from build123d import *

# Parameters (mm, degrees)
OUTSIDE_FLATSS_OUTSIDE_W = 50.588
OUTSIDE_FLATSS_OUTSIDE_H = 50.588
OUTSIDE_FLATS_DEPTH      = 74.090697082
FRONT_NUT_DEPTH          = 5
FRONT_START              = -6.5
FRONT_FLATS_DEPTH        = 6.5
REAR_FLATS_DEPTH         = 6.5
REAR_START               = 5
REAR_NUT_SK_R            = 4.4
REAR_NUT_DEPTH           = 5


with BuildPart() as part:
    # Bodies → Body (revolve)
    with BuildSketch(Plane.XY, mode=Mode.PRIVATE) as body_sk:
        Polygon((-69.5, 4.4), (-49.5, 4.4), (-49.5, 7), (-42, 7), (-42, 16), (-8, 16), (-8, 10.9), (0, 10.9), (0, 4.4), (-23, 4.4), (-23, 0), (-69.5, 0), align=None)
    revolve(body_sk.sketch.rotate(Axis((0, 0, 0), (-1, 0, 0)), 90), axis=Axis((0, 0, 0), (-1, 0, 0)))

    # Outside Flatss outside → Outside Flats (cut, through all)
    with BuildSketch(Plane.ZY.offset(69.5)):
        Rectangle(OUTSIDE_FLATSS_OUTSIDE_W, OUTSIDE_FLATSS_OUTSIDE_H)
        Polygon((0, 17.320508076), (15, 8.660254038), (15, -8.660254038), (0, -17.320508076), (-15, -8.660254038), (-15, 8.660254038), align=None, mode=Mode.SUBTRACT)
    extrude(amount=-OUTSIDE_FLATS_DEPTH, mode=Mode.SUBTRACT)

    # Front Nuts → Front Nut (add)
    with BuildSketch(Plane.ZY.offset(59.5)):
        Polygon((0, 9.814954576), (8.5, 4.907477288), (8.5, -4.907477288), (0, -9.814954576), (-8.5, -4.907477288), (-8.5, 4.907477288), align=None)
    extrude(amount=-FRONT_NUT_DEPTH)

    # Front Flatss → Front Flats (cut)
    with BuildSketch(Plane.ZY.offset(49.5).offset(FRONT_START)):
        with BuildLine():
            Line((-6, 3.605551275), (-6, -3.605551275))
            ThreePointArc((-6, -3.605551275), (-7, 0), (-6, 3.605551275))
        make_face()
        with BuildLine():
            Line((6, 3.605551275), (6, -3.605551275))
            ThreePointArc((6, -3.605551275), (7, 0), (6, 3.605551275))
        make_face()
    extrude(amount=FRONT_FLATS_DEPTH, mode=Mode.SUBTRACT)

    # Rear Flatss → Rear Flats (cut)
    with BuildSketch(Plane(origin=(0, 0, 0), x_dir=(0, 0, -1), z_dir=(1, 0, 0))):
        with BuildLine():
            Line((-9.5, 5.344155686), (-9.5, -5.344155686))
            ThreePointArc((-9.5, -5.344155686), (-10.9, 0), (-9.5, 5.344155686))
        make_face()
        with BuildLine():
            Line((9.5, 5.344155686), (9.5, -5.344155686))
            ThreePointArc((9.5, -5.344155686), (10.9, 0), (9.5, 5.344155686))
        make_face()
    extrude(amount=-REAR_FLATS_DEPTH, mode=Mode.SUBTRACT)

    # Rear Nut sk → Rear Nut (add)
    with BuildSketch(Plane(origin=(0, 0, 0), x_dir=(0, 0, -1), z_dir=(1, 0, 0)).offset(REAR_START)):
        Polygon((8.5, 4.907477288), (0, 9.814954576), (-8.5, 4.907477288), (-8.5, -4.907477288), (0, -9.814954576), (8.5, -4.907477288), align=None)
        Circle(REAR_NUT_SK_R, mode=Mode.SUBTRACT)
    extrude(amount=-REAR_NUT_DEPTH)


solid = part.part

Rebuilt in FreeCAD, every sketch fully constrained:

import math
import FreeCAD as App
import Part
import Sketcher
from FreeCAD import Vector
Q = App.Units.Quantity


def add_polygon(sketch, points):
    """Adds a closed chain of lines whose ends are joined by coincident constraints."""
    first, n = sketch.GeometryCount, len(points)
    for a, b in zip(points, points[1:] + points[:1]):
        sketch.addGeometry(Part.LineSegment(App.Vector(*a, 0), App.Vector(*b, 0)), False)
    for i in range(n):
        sketch.addConstraint(Sketcher.Constraint("Coincident", first + i, 2, first + (i + 1) % n, 1))

doc = App.newDocument("Part")
body = doc.addObject("PartDesign::Body", "Body")

# Sketch on XY plane
sketch1 = body.newObject("Sketcher::SketchObject", "Sketch")
sketch1.AttachmentSupport = (doc.getObject("XY_Plane"), [""])
sketch1.MapMode = "FlatFace"
add_polygon(sketch1, [(-49.5, 4.4), (-69.5, 4.4), (-69.5, 0), (-23, 0), (-23, 4.4), (0, 4.4), (0, 10.9), (-8, 10.9), (-8, 16), (-42, 16), (-42, 7), (-49.5, 7)])  # lines 0-11
sketch1.addConstraint(Sketcher.Constraint("Horizontal", 0))
sketch1.addConstraint(Sketcher.Constraint("Vertical", 1))
sketch1.addConstraint(Sketcher.Constraint("Horizontal", 2))
sketch1.addConstraint(Sketcher.Constraint("Vertical", 3))
sketch1.addConstraint(Sketcher.Constraint("Horizontal", 4))
sketch1.addConstraint(Sketcher.Constraint("Vertical", 5))
sketch1.addConstraint(Sketcher.Constraint("Horizontal", 6))
sketch1.addConstraint(Sketcher.Constraint("Vertical", 7))
sketch1.addConstraint(Sketcher.Constraint("Horizontal", 8))
sketch1.addConstraint(Sketcher.Constraint("Vertical", 9))
sketch1.addConstraint(Sketcher.Constraint("Horizontal", 10))
sketch1.addConstraint(Sketcher.Constraint("Vertical", 11))
sketch1.addConstraint(Sketcher.Constraint("PointOnObject", 1, 2, -1))
sketch1.addConstraint(Sketcher.Constraint("PointOnObject", 4, 2, -2))
sketch1.addConstraint(Sketcher.Constraint("Horizontal", 0, 2, 3, 2))
sketch1.addConstraint(Sketcher.Constraint("DistanceX", 0, 2, 0, 1, 20.0))
sketch1.addConstraint(Sketcher.Constraint("DistanceX", 4, 1, 4, 2, 23.0))
sketch1.addConstraint(Sketcher.Constraint("DistanceX", 6, 2, 6, 1, 8.0))
sketch1.addConstraint(Sketcher.Constraint("DistanceX", 8, 2, 8, 1, 34.0))
sketch1.addConstraint(Sketcher.Constraint("DistanceY", 9, 2, 9, 1, 9.0))
sketch1.addConstraint(Sketcher.Constraint("DistanceX", 2, 1, 2, 2, 46.5))
sketch1.addConstraint(Sketcher.Constraint("DistanceY", 1, 2, 1, 1, 4.4))
sketch1.addConstraint(Sketcher.Constraint("DistanceY", 5, 1, 5, 2, 6.5))
sketch1.addConstraint(Sketcher.Constraint("DistanceY", 7, 1, 7, 2, 5.1))
revolution = body.newObject("PartDesign::Revolution", "Revolution")
revolution.Profile = sketch1
revolution.ReferenceAxis = (sketch1, ["H_Axis"])
revolution.Angle = 360

# Sketch on YZ plane
sketch2 = body.newObject("Sketcher::SketchObject", "Sketch001")
sketch2.AttachmentSupport = (doc.getObject("YZ_Plane"), [""])
sketch2.MapMode = "FlatFace"
sketch2.AttachmentOffset = App.Placement(Vector(0, 0, -69.5), App.Rotation())
add_polygon(sketch2, [(25, -25), (-25, -25), (-25, 25), (25, 25)])  # lines 0-3
add_polygon(sketch2, [(9, -15), (17, 0), (9, 15), (-9, 15), (-17, 0), (-9, -15)])  # lines 4-9
sketch2.addConstraint(Sketcher.Constraint("Horizontal", 0))
sketch2.addConstraint(Sketcher.Constraint("Vertical", 1))
sketch2.addConstraint(Sketcher.Constraint("Horizontal", 2))
sketch2.addConstraint(Sketcher.Constraint("Vertical", 3))
sketch2.addConstraint(Sketcher.Constraint("Horizontal", 6))
sketch2.addConstraint(Sketcher.Constraint("Horizontal", 9))
sketch2.addConstraint(Sketcher.Constraint("Symmetric", 0, 2, 2, 2, -1, 1))
sketch2.addConstraint(Sketcher.Constraint("Symmetric", 4, 2, 7, 2, -1, 1))
sketch2.addConstraint(Sketcher.Constraint("Symmetric", 5, 2, 8, 2, -1, 1))
sketch2.addConstraint(Sketcher.Constraint("PointOnObject", 4, 2, -1))
sketch2.addConstraint(Sketcher.Constraint("Parallel", 4, 7))
sketch2.addConstraint(Sketcher.Constraint("Vertical", 6, 2, 8, 2))
sketch2.addConstraint(Sketcher.Constraint("Equal", 2, 1))
sketch2.addConstraint(Sketcher.Constraint("Angle", 4, Q("60 deg")))
sketch2.addConstraint(Sketcher.Constraint("DistanceY", -1, 1, 5, 2, 15.0))
sketch2.addConstraint(Sketcher.Constraint("DistanceX", 0, 2, 0, 1, 50.588))
sketch2.addConstraint(Sketcher.Constraint("DistanceX", 6, 2, 6, 1, 17.320508))
pocket1 = body.newObject("PartDesign::Pocket", "Pocket")
pocket1.Profile = sketch2
pocket1.Type = "ThroughAll"
pocket1.Reversed = True

# Sketch on YZ plane
sketch3 = body.newObject("Sketcher::SketchObject", "Sketch002")
sketch3.AttachmentSupport = (doc.getObject("YZ_Plane"), [""])
sketch3.MapMode = "FlatFace"
sketch3.AttachmentOffset = App.Placement(Vector(0, 0, -59.5), App.Rotation())
add_polygon(sketch3, [(5, 8), (10, 0), (5, -8), (-5, -8), (-10, 0), (-5, 8)])  # lines 0-5
sketch3.addConstraint(Sketcher.Constraint("Horizontal", 2))
sketch3.addConstraint(Sketcher.Constraint("Horizontal", 5))
sketch3.addConstraint(Sketcher.Constraint("Symmetric", 0, 2, 3, 2, -1, 1))
sketch3.addConstraint(Sketcher.Constraint("Symmetric", 1, 2, 4, 2, -1, 1))
sketch3.addConstraint(Sketcher.Constraint("PointOnObject", 0, 2, -1))
sketch3.addConstraint(Sketcher.Constraint("Parallel", 0, 3))
sketch3.addConstraint(Sketcher.Constraint("Vertical", 2, 2, 4, 2))
sketch3.addConstraint(Sketcher.Constraint("Angle", 0, Q("-60 deg")))
sketch3.addConstraint(Sketcher.Constraint("DistanceY", 2, 2, 4, 2, 17.0))
sketch3.addConstraint(Sketcher.Constraint("DistanceX", 2, 2, 2, 1, 9.814955))
pad1 = body.newObject("PartDesign::Pad", "Pad")
pad1.Profile = sketch3
pad1.Length = 5

# Sketch on YZ plane
sketch4 = body.newObject("Sketcher::SketchObject", "Sketch003")
sketch4.AttachmentSupport = (doc.getObject("YZ_Plane"), [""])
sketch4.MapMode = "FlatFace"
sketch4.AttachmentOffset = App.Placement(Vector(0, 0, -43), App.Rotation())
sketch4.addGeometry(Part.LineSegment(Vector(-4, -6, 0), Vector(4, -6, 0)), False)
sketch4.addGeometry(Part.ArcOfCircle(Part.Circle(Vector(0, 0, 0), Vector(0, 0, 1), 7), math.radians(-121), math.radians(-59)), False)
sketch4.addGeometry(Part.LineSegment(Vector(4, 6, 0), Vector(-4, 6, 0)), False)
sketch4.addGeometry(Part.ArcOfCircle(Part.Circle(Vector(0, 0, 0), Vector(0, 0, 1), 7), math.radians(59), math.radians(121)), False)
sketch4.addConstraint(Sketcher.Constraint("Coincident", 0, 1, 1, 1))
sketch4.addConstraint(Sketcher.Constraint("Coincident", 1, 2, 0, 2))
sketch4.addConstraint(Sketcher.Constraint("Coincident", 2, 1, 3, 1))
sketch4.addConstraint(Sketcher.Constraint("Coincident", 3, 2, 2, 2))
sketch4.addConstraint(Sketcher.Constraint("Horizontal", 0))
sketch4.addConstraint(Sketcher.Constraint("Horizontal", 2))
sketch4.addConstraint(Sketcher.Constraint("Coincident", 1, 3, -1, 1))
sketch4.addConstraint(Sketcher.Constraint("Coincident", 3, 3, -1, 1))
sketch4.addConstraint(Sketcher.Constraint("Equal", 1, 3))
sketch4.addConstraint(Sketcher.Constraint("Vertical", 1, 2, 2, 1))
sketch4.addConstraint(Sketcher.Constraint("Radius", 1, 7.0))
sketch4.addConstraint(Sketcher.Constraint("DistanceY", 0, 1, -1, 1, 6.0))
pocket2 = body.newObject("PartDesign::Pocket", "Pocket001")
pocket2.Profile = sketch4
pocket2.Length = 6.5

# Sketch on YZ plane
sketch5 = body.newObject("Sketcher::SketchObject", "Sketch004")
sketch5.AttachmentSupport = (doc.getObject("YZ_Plane"), [""])
sketch5.MapMode = "FlatFace"
sketch5.addGeometry(Part.LineSegment(Vector(-5, 10, 0), Vector(5, 10, 0)), False)
sketch5.addGeometry(Part.ArcOfCircle(Part.Circle(Vector(0, 0, 0), Vector(0, 0, 1), 11), math.radians(61), math.radians(119)), False)
sketch5.addGeometry(Part.LineSegment(Vector(5, -10, 0), Vector(-5, -10, 0)), False)
sketch5.addGeometry(Part.ArcOfCircle(Part.Circle(Vector(0, 0, 0), Vector(0, 0, 1), 11), math.radians(-119), math.radians(-61)), False)
sketch5.addConstraint(Sketcher.Constraint("Coincident", 0, 1, 1, 2))
sketch5.addConstraint(Sketcher.Constraint("Coincident", 1, 1, 0, 2))
sketch5.addConstraint(Sketcher.Constraint("Coincident", 2, 1, 3, 2))
sketch5.addConstraint(Sketcher.Constraint("Coincident", 3, 1, 2, 2))
sketch5.addConstraint(Sketcher.Constraint("Horizontal", 0))
sketch5.addConstraint(Sketcher.Constraint("Horizontal", 2))
sketch5.addConstraint(Sketcher.Constraint("Coincident", 1, 3, -1, 1))
sketch5.addConstraint(Sketcher.Constraint("Coincident", 3, 3, -1, 1))
sketch5.addConstraint(Sketcher.Constraint("Equal", 1, 3))
sketch5.addConstraint(Sketcher.Constraint("Vertical", 1, 1, 2, 1))
sketch5.addConstraint(Sketcher.Constraint("Radius", 1, 10.9))
sketch5.addConstraint(Sketcher.Constraint("DistanceY", 2, 1, 1, 1, 19.0))
pocket3 = body.newObject("PartDesign::Pocket", "Pocket002")
pocket3.Profile = sketch5
pocket3.Length = 6.5

# Sketch on YZ plane
sketch6 = body.newObject("Sketcher::SketchObject", "Sketch005")
sketch6.AttachmentSupport = (doc.getObject("YZ_Plane"), [""])
sketch6.MapMode = "FlatFace"
sketch6.AttachmentOffset = App.Placement(Vector(0, 0, 5), App.Rotation())
add_polygon(sketch6, [(4.9, -8.5), (9.8, 0), (4.9, 8.5), (-4.9, 8.5), (-9.8, 0), (-4.9, -8.5)])  # lines 0-5
sketch6.addGeometry(Part.Circle(Vector(0, 0, 0), Vector(0, 0, 1), 4.4), False)  # 6
sketch6.addConstraint(Sketcher.Constraint("Horizontal", 2))
sketch6.addConstraint(Sketcher.Constraint("Horizontal", 5))
sketch6.addConstraint(Sketcher.Constraint("Coincident", 6, 3, -1, 1))
sketch6.addConstraint(Sketcher.Constraint("Symmetric", 0, 2, 3, 2, -1, 1))
sketch6.addConstraint(Sketcher.Constraint("Symmetric", 1, 2, 4, 2, -1, 1))
sketch6.addConstraint(Sketcher.Constraint("PointOnObject", 0, 2, -1))
sketch6.addConstraint(Sketcher.Constraint("Parallel", 0, 3))
sketch6.addConstraint(Sketcher.Constraint("Vertical", 2, 2, 4, 2))
sketch6.addConstraint(Sketcher.Constraint("Diameter", 6, 8.8))
sketch6.addConstraint(Sketcher.Constraint("Angle", 0, Q("60 deg")))
sketch6.addConstraint(Sketcher.Constraint("DistanceY", 4, 2, 2, 2, 17.0))
sketch6.addConstraint(Sketcher.Constraint("DistanceX", 2, 2, 2, 1, 9.814955))
pad2 = body.newObject("PartDesign::Pad", "Pad001")
pad2.Profile = sketch6
pad2.Length = 5
pad2.Reversed = True

doc.recompute()
